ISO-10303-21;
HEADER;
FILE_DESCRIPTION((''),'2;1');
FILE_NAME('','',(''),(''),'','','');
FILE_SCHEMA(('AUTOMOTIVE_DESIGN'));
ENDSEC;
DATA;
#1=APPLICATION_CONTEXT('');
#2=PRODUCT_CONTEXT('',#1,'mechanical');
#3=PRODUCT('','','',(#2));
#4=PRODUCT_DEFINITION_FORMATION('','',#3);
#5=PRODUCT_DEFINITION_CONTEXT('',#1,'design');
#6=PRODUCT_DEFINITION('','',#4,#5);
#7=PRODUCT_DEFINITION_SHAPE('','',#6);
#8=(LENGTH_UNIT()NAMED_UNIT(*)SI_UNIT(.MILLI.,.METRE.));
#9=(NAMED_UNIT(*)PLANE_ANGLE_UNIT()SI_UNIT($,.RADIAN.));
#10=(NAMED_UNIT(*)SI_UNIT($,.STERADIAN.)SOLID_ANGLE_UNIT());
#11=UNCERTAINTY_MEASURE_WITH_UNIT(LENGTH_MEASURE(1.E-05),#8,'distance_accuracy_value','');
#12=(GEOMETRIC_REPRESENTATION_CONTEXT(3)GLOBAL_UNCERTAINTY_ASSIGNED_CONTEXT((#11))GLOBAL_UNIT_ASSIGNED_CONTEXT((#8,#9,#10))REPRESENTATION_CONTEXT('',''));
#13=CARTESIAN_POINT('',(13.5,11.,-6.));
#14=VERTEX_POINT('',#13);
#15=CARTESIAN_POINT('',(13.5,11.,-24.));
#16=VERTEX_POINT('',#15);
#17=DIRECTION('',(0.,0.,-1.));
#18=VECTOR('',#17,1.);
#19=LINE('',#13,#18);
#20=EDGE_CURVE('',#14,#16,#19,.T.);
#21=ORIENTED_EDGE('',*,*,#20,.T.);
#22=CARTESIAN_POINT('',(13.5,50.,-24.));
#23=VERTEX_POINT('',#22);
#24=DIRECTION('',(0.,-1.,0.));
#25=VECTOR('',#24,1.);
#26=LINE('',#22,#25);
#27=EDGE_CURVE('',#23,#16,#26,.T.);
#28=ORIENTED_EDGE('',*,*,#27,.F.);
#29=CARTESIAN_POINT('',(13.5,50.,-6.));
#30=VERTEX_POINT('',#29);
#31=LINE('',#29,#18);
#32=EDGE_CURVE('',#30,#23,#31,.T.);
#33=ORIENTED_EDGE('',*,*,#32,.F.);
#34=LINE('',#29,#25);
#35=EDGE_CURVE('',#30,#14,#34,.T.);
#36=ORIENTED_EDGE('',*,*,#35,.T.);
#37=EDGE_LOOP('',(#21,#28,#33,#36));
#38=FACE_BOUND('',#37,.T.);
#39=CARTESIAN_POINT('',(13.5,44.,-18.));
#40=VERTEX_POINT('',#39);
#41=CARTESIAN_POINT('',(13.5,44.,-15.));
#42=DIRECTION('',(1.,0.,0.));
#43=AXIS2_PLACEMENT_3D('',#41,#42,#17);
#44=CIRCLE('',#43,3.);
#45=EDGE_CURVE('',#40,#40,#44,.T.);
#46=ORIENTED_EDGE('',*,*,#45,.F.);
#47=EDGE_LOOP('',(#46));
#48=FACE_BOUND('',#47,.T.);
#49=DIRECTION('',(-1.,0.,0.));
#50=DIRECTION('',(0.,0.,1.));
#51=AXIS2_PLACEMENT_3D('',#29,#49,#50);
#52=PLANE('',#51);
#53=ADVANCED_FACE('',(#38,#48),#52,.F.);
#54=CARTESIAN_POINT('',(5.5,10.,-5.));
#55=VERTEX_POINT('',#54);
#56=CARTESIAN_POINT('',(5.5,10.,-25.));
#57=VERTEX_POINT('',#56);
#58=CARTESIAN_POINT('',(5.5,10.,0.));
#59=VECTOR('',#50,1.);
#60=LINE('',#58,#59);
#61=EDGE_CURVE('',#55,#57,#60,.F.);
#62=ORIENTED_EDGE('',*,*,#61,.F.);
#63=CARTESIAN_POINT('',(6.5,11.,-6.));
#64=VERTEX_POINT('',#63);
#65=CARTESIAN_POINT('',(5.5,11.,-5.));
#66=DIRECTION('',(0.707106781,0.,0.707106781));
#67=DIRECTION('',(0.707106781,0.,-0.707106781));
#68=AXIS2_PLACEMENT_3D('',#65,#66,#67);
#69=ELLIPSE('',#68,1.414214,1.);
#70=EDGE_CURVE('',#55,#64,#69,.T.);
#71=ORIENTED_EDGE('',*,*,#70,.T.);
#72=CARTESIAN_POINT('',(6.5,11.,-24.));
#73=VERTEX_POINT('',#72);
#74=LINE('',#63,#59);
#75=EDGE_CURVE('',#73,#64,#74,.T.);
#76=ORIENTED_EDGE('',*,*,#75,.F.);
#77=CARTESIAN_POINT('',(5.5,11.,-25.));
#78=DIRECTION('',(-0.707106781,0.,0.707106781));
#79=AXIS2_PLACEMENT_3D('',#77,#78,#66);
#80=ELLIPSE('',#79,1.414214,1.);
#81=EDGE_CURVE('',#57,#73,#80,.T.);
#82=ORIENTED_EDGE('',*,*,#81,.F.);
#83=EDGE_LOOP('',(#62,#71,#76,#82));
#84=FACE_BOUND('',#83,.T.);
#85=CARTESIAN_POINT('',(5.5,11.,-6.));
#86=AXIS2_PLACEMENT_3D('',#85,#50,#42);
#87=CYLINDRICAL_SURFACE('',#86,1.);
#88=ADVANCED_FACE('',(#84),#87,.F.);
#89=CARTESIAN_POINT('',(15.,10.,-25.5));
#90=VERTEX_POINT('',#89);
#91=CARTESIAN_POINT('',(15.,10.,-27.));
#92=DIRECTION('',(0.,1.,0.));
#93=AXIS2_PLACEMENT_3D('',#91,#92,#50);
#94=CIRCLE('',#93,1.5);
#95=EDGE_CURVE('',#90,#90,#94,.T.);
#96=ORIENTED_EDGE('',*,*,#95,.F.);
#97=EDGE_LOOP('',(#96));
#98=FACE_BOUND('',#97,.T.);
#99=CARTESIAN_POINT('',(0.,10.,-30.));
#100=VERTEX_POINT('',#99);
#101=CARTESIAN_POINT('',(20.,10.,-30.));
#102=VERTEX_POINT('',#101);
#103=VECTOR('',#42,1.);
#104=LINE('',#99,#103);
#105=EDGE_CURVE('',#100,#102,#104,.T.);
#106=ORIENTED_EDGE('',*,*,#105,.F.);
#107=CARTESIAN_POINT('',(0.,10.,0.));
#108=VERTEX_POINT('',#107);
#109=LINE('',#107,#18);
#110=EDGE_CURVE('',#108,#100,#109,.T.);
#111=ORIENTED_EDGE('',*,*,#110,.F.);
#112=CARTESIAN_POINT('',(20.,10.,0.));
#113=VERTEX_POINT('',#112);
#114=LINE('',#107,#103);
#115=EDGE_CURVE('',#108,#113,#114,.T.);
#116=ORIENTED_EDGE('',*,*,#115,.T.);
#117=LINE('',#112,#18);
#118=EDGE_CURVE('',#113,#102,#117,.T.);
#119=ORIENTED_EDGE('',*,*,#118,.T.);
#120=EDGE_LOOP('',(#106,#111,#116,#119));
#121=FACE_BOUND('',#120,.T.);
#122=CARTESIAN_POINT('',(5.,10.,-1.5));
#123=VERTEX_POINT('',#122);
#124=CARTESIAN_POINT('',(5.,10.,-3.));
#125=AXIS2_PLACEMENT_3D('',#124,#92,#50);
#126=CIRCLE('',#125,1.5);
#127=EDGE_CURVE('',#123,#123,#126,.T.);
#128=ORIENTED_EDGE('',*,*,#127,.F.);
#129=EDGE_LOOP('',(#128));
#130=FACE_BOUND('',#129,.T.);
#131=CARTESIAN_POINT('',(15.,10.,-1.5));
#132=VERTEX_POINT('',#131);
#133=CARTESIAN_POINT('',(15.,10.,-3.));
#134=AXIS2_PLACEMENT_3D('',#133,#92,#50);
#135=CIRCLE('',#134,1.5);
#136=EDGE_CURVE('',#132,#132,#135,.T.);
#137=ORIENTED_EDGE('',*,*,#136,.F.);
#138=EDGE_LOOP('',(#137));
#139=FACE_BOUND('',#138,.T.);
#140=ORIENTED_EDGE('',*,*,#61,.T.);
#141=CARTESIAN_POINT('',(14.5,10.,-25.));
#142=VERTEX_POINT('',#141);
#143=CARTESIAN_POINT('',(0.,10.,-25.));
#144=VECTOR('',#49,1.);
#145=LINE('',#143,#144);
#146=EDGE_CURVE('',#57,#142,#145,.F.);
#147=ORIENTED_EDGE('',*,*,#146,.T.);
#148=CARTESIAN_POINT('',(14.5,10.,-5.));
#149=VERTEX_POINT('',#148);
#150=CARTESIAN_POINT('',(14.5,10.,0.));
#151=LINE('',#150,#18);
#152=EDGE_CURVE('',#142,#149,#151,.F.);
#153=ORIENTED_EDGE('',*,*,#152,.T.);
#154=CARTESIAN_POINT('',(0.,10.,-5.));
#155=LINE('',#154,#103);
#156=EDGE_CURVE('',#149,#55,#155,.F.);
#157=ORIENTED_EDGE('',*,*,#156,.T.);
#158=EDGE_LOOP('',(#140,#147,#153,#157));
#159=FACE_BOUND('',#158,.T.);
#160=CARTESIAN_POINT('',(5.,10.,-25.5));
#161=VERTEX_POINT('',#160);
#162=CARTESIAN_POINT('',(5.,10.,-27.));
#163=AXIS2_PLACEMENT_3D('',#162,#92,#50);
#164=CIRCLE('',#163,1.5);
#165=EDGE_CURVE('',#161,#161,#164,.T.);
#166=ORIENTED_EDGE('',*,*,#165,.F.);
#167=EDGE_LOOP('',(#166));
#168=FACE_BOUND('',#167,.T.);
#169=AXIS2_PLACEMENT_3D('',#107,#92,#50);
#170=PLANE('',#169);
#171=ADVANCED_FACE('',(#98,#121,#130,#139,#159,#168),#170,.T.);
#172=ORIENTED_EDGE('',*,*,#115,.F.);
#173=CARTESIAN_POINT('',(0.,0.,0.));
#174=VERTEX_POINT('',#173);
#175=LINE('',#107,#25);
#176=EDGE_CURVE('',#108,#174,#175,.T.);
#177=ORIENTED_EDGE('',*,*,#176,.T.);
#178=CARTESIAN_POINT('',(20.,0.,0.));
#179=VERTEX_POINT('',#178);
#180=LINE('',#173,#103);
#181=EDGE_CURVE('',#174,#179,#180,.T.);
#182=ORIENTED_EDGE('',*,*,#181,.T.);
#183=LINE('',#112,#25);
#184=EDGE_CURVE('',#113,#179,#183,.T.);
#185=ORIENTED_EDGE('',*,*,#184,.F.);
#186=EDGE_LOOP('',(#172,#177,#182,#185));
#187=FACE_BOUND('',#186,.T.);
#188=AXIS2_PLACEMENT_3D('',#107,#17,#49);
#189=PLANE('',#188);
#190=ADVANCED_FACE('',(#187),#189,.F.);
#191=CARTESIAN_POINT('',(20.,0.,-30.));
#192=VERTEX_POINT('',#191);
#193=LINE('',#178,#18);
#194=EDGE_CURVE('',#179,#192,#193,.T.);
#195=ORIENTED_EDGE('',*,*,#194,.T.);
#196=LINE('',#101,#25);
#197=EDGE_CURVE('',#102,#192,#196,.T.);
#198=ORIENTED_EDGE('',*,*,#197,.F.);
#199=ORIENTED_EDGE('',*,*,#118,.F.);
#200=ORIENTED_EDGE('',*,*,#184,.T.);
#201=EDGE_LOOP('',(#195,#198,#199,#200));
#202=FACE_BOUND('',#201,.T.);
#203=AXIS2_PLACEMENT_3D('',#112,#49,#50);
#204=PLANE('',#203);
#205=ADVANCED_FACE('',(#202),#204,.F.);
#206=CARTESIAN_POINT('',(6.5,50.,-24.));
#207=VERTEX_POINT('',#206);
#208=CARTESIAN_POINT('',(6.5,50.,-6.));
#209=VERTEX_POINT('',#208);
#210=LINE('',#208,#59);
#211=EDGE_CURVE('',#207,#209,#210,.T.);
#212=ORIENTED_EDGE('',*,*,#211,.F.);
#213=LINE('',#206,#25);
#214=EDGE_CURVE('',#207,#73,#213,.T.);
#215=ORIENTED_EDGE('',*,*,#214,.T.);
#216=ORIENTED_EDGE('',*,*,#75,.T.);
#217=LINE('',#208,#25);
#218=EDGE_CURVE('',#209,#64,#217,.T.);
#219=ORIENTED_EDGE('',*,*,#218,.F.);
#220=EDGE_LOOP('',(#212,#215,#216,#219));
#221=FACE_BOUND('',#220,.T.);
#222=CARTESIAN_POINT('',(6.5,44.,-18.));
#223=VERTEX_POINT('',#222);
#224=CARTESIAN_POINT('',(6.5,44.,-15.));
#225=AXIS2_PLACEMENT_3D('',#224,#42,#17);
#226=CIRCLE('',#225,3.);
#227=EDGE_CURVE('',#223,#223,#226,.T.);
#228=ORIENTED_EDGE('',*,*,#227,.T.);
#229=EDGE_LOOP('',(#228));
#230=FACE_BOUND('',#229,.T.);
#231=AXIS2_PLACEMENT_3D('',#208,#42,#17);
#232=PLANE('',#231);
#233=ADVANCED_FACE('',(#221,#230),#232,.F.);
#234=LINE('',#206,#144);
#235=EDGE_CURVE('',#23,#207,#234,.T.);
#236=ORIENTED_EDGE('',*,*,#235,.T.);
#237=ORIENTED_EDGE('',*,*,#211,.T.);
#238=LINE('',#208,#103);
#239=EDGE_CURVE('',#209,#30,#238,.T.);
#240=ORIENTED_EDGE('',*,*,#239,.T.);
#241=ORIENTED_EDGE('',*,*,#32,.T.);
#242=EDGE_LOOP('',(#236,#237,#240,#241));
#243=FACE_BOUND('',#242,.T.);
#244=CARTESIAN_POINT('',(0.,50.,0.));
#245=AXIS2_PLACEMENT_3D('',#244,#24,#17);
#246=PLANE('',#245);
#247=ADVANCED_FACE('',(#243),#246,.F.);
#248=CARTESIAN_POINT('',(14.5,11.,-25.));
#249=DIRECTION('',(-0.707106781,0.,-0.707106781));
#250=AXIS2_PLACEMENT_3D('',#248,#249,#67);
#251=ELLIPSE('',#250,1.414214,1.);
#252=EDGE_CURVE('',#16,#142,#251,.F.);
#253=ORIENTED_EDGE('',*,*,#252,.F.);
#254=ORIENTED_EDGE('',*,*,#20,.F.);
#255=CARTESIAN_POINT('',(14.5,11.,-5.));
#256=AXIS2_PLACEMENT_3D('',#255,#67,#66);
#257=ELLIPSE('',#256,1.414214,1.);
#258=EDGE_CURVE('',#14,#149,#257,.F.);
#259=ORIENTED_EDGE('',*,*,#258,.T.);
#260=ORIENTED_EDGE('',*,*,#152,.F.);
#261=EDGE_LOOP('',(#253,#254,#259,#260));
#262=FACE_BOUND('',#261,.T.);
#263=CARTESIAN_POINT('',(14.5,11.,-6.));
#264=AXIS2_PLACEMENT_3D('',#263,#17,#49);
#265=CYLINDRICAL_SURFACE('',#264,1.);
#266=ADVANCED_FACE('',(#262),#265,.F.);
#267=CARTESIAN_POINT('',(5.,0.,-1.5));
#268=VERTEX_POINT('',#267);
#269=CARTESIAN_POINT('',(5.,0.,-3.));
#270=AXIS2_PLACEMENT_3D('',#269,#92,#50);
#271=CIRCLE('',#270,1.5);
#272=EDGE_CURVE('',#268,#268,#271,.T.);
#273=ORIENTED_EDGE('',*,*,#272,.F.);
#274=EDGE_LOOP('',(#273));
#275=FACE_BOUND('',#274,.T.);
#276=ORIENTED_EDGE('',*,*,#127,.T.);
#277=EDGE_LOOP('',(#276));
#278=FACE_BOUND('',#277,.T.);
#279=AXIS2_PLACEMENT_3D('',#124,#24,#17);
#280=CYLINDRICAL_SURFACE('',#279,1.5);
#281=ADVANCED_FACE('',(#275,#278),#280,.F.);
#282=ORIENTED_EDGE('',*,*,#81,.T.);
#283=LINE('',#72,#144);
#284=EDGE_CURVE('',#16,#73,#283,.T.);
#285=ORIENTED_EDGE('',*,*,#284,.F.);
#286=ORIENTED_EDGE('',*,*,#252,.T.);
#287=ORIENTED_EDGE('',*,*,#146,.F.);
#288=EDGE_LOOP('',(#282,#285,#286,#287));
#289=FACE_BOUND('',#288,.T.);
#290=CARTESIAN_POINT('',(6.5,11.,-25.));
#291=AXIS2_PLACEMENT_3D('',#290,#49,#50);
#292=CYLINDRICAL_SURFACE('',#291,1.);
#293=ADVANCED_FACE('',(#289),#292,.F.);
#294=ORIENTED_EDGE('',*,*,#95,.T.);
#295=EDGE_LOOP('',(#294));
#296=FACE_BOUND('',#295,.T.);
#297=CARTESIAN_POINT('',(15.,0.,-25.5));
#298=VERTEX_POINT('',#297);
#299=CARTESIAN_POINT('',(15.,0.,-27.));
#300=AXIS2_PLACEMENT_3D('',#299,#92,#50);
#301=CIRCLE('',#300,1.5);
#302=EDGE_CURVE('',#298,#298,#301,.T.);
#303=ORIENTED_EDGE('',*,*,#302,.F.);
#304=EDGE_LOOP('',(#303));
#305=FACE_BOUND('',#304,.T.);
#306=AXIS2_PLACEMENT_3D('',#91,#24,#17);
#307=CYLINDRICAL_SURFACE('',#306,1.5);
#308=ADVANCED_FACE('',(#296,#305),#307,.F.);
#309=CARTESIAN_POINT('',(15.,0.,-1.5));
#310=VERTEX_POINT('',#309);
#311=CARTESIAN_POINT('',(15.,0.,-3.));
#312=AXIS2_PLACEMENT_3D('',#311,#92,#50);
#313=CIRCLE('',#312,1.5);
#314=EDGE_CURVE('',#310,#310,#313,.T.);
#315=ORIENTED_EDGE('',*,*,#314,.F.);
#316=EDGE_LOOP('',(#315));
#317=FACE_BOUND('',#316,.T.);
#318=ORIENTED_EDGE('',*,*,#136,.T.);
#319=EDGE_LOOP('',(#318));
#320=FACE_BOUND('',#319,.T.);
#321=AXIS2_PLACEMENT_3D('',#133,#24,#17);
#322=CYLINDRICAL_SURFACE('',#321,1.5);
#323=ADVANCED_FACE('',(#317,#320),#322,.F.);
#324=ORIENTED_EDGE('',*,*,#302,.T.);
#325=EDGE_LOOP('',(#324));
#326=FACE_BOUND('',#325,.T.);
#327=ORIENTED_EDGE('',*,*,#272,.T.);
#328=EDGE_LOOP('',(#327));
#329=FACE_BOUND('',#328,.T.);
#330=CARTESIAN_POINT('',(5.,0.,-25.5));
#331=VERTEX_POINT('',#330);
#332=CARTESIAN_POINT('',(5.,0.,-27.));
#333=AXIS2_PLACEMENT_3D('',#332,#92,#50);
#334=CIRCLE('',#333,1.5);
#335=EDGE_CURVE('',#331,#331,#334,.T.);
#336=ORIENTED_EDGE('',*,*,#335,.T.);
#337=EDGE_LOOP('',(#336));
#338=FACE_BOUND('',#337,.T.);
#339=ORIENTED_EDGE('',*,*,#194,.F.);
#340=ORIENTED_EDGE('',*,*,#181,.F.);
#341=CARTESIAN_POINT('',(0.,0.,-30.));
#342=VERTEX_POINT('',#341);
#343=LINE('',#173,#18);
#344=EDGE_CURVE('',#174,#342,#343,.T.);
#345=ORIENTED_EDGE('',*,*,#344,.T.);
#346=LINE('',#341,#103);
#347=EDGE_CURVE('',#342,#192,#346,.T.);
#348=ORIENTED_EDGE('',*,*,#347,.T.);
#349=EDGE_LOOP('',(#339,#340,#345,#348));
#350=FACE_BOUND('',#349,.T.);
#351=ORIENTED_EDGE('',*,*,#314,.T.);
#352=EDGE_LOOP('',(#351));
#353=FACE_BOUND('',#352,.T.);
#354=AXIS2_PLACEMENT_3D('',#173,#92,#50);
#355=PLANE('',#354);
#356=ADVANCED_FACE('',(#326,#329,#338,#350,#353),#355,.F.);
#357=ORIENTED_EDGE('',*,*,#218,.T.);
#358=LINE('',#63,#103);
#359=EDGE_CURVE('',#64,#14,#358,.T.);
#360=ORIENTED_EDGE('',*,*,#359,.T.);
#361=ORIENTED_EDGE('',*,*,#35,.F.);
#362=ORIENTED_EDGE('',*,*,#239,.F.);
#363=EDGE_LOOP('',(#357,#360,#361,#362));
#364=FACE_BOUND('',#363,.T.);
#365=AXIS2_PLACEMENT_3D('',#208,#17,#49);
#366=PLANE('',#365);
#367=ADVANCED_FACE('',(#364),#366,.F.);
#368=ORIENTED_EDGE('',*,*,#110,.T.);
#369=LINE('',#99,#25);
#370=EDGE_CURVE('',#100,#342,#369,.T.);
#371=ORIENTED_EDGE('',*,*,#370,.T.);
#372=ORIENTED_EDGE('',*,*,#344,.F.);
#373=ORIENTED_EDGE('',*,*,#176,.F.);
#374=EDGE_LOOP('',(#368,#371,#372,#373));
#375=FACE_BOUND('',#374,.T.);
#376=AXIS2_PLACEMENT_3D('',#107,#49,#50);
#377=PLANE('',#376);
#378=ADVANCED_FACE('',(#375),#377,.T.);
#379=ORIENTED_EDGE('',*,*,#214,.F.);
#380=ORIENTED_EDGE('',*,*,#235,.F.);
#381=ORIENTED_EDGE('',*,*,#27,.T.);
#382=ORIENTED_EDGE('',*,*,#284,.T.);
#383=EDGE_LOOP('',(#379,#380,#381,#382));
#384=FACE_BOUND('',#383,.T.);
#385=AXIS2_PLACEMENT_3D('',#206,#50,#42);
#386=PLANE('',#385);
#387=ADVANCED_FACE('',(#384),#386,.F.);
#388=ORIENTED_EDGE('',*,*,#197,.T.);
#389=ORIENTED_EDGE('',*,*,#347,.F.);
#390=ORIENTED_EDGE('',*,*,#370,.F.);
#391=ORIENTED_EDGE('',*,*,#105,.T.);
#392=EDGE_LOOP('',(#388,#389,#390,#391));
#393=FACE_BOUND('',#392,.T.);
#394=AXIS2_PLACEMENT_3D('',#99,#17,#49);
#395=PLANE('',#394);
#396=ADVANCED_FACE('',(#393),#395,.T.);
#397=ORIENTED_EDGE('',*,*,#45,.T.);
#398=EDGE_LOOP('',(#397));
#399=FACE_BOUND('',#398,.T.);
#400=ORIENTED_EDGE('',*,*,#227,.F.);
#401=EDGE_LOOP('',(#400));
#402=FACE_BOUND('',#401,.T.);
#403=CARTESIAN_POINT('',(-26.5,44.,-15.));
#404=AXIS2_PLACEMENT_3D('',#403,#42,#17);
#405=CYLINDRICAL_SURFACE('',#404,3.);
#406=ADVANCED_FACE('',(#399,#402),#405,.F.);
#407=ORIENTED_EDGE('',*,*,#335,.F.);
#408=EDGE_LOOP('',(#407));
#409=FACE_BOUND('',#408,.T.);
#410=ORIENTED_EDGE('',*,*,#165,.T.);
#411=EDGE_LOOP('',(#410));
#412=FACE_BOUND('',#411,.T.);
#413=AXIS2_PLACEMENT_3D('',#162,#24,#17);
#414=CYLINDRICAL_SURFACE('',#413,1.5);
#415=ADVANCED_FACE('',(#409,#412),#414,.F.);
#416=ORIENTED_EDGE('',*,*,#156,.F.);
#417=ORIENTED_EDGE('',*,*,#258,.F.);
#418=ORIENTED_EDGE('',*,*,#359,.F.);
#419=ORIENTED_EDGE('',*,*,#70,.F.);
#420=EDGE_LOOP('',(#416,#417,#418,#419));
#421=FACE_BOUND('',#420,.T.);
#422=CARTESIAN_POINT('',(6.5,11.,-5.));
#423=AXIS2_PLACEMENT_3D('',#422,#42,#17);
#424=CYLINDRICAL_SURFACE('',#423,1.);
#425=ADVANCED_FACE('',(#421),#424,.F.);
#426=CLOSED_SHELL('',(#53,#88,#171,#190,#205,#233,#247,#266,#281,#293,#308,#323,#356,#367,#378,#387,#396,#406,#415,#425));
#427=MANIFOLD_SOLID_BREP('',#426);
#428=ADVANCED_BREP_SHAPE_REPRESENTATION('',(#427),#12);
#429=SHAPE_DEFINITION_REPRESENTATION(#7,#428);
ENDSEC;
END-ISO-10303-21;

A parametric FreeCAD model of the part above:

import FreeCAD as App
import Part
import Sketcher

V = App.Vector
Q = App.Units.Quantity


def edges_at(feature, points):
    """Names of the edges that pass closest to the given points."""
    edges = feature.Shape.Edges
    near = lambda p: min(range(len(edges)), key=lambda i: edges[i].distToShape(Part.Vertex(*p))[0])
    return sorted({f"Edge{near(p) + 1}" for p in points})

doc = App.newDocument("Part")
body = doc.addObject("PartDesign::Body", "Body")

# Sketch on XZ plane
sketch1 = doc.addObject("Sketcher::SketchObject", "Sketch")
body.addObject(sketch1)
sketch1.AttachmentSupport = (doc.XZ_Plane, [""])
sketch1.MapMode = "FlatFace"
sketch1.addGeometry([
    Part.LineSegment(V(0, -30, 0), V(0, 0, 0)),  # 0
    Part.LineSegment(V(0, 0, 0), V(20, 0, 0)),  # 1
    Part.LineSegment(V(20, 0, 0), V(20, -30, 0)),  # 2
    Part.LineSegment(V(20, -30, 0), V(0, -30, 0)),  # 3
    Part.Circle(V(5, -3, 0), V(0, 0, 1), 1.5),  # 4
    Part.Circle(V(15, -3, 0), V(0, 0, 1), 1.5),  # 5
    Part.Circle(V(5, -27, 0), V(0, 0, 1), 1.5),  # 6
    Part.Circle(V(15, -27, 0), V(0, 0, 1), 1.5),  # 7
], False)
sketch1.addConstraint([
    Sketcher.Constraint("Coincident", 0, 2, 1, 1),
    Sketcher.Constraint("Coincident", 1, 2, 2, 1),
    Sketcher.Constraint("Coincident", 2, 2, 3, 1),
    Sketcher.Constraint("Coincident", 3, 2, 0, 1),
    Sketcher.Constraint("Vertical", 0),
    Sketcher.Constraint("Horizontal", 1),
    Sketcher.Constraint("Vertical", 2),
    Sketcher.Constraint("Horizontal", 3),
    Sketcher.Constraint("Coincident", 0, 2, -1, 1),
    Sketcher.Constraint("Equal", 4, 5),
    Sketcher.Constraint("Equal", 5, 6),
    Sketcher.Constraint("Equal", 6, 7),
    Sketcher.Constraint("Horizontal", 4, 3, 5, 3),
    Sketcher.Constraint("Horizontal", 6, 3, 7, 3),
    Sketcher.Constraint("Vertical", 4, 3, 6, 3),
    Sketcher.Constraint("Vertical", 5, 3, 7, 3),
    Sketcher.Constraint("Diameter", 4, Q("3 mm")),
    Sketcher.Constraint("DistanceX", 1, 1, 1, 2, Q("20 mm")),
    Sketcher.Constraint("DistanceY", 0, 1, 0, 2, Q("30 mm")),
    Sketcher.Constraint("DistanceX", -1, 1, 4, 3, Q("5 mm")),
    Sketcher.Constraint("DistanceY", 4, 3, -1, 1, Q("3 mm")),
    Sketcher.Constraint("DistanceX", -1, 1, 5, 3, Q("15 mm")),
    Sketcher.Constraint("DistanceY", 6, 3, -1, 1, Q("27 mm")),
])
pad1 = doc.addObject("PartDesign::Pad", "Pad")
body.addObject(pad1)
pad1.Profile = sketch1
pad1.Length = 10
pad1.Reversed = True

# Sketch on XZ plane
sketch2 = doc.addObject("Sketcher::SketchObject", "Sketch001")
body.addObject(sketch2)
sketch2.AttachmentSupport = (doc.XZ_Plane, [""])
sketch2.MapMode = "FlatFace"
sketch2.AttachmentOffset = App.Placement(V(0, 0, -10), App.Rotation())
sketch2.addGeometry([
    Part.LineSegment(V(6, -24, 0), V(6, -6, 0)),
    Part.LineSegment(V(6, -6, 0), V(14, -6, 0)),
    Part.LineSegment(V(14, -6, 0), V(14, -24, 0)),
    Part.LineSegment(V(14, -24, 0), V(6, -24, 0)),
], False)
sketch2.addConstraint([
    Sketcher.Constraint("Coincident", 0, 2, 1, 1),
    Sketcher.Constraint("Coincident", 1, 2, 2, 1),
    Sketcher.Constraint("Coincident", 2, 2, 3, 1),
    Sketcher.Constraint("Coincident", 3, 2, 0, 1),
    Sketcher.Constraint("Vertical", 0),
    Sketcher.Constraint("Horizontal", 1),
    Sketcher.Constraint("Vertical", 2),
    Sketcher.Constraint("Horizontal", 3),
    Sketcher.Constraint("DistanceX", 1, 1, 1, 2, Q("7 mm")),
    Sketcher.Constraint("DistanceY", 0, 1, 0, 2, Q("18 mm")),
    Sketcher.Constraint("DistanceY", 0, 2, -1, 1, Q("6 mm")),
    Sketcher.Constraint("DistanceX", -1, 1, 0, 2, Q("6.5 mm")),
])
pad2 = doc.addObject("PartDesign::Pad", "Pad001")
body.addObject(pad2)
pad2.Profile = sketch2
pad2.Length = 40
pad2.Reversed = True

# Sketch on YZ plane
sketch3 = doc.addObject("Sketcher::SketchObject", "Sketch002")
body.addObject(sketch3)
sketch3.AttachmentSupport = (doc.YZ_Plane, [""])
sketch3.MapMode = "FlatFace"
sketch3.AttachmentOffset = App.Placement(V(0, 0, 13.5), App.Rotation())
sketch3.addGeometry(Part.Circle(V(44, -15, 0), V(0, 0, 1), 3), False)
sketch3.addConstraint([
    Sketcher.Constraint("Diameter", 0, Q("6 mm")),
    Sketcher.Constraint("DistanceX", -1, 1, 0, 3, Q("44 mm")),
    Sketcher.Constraint("DistanceY", 0, 3, -1, 1, Q("15 mm")),
])
pocket1 = doc.addObject("PartDesign::Pocket", "Pocket")
body.addObject(pocket1)
pocket1.Profile = sketch3
pocket1.Length = 40
doc.recompute()

fillet = doc.addObject("PartDesign::Fillet", "Fillet")
body.addObject(fillet)
fillet.Base = (pocket1, edges_at(pocket1, [
    (13.5, 10, -15),
    (10, 10, -24),
    (6.5, 10, -15),
    (10, 10, -6),
]))
fillet.Radius = 1

doc.recompute()
